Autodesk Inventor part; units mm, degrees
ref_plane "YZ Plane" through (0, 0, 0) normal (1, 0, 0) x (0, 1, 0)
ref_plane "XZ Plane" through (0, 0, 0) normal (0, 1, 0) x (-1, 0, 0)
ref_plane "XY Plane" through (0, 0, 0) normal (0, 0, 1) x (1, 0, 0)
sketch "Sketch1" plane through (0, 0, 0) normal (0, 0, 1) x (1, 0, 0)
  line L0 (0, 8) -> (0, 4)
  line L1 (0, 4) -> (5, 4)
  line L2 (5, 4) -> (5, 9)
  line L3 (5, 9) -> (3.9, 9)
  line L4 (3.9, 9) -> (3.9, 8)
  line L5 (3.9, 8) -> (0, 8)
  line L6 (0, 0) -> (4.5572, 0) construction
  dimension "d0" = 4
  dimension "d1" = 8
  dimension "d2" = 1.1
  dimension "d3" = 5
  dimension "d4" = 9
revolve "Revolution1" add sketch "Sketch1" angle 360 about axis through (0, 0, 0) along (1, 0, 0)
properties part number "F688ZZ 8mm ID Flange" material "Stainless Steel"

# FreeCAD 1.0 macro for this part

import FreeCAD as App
import Part
import Sketcher

V = App.Vector
Q = App.Units.Quantity

doc = App.newDocument("Part")
body = doc.addObject("PartDesign::Body", "Body")

# Sketch on XY plane
sketch1 = doc.addObject("Sketcher::SketchObject", "Sketch")
body.addObject(sketch1)
sketch1.AttachmentSupport = (doc.XY_Plane, [""])
sketch1.MapMode = "FlatFace"
sketch1.addGeometry([
    Part.LineSegment(V(3.9, 8, 0), V(0, 8, 0)),  # 0
    Part.LineSegment(V(0, 8, 0), V(0, 4, 0)),  # 1
    Part.LineSegment(V(0, 4, 0), V(5, 4, 0)),  # 2
    Part.LineSegment(V(5, 4, 0), V(5, 9, 0)),  # 3
    Part.LineSegment(V(5, 9, 0), V(3.9, 9, 0)),  # 4
    Part.LineSegment(V(3.9, 9, 0), V(3.9, 8, 0)),  # 5
], False)
sketch1.addConstraint([
    Sketcher.Constraint("Coincident", 0, 2, 1, 1),
    Sketcher.Constraint("Coincident", 1, 2, 2, 1),
    Sketcher.Constraint("Coincident", 2, 2, 3, 1),
    Sketcher.Constraint("Coincident", 3, 2, 4, 1),
    Sketcher.Constraint("Coincident", 4, 2, 5, 1),
    Sketcher.Constraint("Coincident", 5, 2, 0, 1),
    Sketcher.Constraint("Horizontal", 0),
    Sketcher.Constraint("Vertical", 1),
    Sketcher.Constraint("Horizontal", 2),
    Sketcher.Constraint("Vertical", 3),
    Sketcher.Constraint("Horizontal", 4),
    Sketcher.Constraint("Vertical", 5),
    Sketcher.Constraint("PointOnObject", 0, 2, -2),
    Sketcher.Constraint("Equal", 2, 3),
    Sketcher.Constraint("DistanceX", 2, 1, 2, 2, Q("5 mm")),
    Sketcher.Constraint("DistanceY", 1, 2, 1, 1, Q("4 mm")),
    Sketcher.Constraint("DistanceX", 4, 2, 4, 1, Q("1.1 mm")),
    Sketcher.Constraint("DistanceY", -1, 1, 0, 2, Q("8 mm")),
])
revolution = doc.addObject("PartDesign::Revolution", "Revolution")
body.addObject(revolution)
revolution.Profile = sketch1
revolution.ReferenceAxis = (sketch1, ["H_Axis"])
revolution.Angle = 360

doc.recompute()
